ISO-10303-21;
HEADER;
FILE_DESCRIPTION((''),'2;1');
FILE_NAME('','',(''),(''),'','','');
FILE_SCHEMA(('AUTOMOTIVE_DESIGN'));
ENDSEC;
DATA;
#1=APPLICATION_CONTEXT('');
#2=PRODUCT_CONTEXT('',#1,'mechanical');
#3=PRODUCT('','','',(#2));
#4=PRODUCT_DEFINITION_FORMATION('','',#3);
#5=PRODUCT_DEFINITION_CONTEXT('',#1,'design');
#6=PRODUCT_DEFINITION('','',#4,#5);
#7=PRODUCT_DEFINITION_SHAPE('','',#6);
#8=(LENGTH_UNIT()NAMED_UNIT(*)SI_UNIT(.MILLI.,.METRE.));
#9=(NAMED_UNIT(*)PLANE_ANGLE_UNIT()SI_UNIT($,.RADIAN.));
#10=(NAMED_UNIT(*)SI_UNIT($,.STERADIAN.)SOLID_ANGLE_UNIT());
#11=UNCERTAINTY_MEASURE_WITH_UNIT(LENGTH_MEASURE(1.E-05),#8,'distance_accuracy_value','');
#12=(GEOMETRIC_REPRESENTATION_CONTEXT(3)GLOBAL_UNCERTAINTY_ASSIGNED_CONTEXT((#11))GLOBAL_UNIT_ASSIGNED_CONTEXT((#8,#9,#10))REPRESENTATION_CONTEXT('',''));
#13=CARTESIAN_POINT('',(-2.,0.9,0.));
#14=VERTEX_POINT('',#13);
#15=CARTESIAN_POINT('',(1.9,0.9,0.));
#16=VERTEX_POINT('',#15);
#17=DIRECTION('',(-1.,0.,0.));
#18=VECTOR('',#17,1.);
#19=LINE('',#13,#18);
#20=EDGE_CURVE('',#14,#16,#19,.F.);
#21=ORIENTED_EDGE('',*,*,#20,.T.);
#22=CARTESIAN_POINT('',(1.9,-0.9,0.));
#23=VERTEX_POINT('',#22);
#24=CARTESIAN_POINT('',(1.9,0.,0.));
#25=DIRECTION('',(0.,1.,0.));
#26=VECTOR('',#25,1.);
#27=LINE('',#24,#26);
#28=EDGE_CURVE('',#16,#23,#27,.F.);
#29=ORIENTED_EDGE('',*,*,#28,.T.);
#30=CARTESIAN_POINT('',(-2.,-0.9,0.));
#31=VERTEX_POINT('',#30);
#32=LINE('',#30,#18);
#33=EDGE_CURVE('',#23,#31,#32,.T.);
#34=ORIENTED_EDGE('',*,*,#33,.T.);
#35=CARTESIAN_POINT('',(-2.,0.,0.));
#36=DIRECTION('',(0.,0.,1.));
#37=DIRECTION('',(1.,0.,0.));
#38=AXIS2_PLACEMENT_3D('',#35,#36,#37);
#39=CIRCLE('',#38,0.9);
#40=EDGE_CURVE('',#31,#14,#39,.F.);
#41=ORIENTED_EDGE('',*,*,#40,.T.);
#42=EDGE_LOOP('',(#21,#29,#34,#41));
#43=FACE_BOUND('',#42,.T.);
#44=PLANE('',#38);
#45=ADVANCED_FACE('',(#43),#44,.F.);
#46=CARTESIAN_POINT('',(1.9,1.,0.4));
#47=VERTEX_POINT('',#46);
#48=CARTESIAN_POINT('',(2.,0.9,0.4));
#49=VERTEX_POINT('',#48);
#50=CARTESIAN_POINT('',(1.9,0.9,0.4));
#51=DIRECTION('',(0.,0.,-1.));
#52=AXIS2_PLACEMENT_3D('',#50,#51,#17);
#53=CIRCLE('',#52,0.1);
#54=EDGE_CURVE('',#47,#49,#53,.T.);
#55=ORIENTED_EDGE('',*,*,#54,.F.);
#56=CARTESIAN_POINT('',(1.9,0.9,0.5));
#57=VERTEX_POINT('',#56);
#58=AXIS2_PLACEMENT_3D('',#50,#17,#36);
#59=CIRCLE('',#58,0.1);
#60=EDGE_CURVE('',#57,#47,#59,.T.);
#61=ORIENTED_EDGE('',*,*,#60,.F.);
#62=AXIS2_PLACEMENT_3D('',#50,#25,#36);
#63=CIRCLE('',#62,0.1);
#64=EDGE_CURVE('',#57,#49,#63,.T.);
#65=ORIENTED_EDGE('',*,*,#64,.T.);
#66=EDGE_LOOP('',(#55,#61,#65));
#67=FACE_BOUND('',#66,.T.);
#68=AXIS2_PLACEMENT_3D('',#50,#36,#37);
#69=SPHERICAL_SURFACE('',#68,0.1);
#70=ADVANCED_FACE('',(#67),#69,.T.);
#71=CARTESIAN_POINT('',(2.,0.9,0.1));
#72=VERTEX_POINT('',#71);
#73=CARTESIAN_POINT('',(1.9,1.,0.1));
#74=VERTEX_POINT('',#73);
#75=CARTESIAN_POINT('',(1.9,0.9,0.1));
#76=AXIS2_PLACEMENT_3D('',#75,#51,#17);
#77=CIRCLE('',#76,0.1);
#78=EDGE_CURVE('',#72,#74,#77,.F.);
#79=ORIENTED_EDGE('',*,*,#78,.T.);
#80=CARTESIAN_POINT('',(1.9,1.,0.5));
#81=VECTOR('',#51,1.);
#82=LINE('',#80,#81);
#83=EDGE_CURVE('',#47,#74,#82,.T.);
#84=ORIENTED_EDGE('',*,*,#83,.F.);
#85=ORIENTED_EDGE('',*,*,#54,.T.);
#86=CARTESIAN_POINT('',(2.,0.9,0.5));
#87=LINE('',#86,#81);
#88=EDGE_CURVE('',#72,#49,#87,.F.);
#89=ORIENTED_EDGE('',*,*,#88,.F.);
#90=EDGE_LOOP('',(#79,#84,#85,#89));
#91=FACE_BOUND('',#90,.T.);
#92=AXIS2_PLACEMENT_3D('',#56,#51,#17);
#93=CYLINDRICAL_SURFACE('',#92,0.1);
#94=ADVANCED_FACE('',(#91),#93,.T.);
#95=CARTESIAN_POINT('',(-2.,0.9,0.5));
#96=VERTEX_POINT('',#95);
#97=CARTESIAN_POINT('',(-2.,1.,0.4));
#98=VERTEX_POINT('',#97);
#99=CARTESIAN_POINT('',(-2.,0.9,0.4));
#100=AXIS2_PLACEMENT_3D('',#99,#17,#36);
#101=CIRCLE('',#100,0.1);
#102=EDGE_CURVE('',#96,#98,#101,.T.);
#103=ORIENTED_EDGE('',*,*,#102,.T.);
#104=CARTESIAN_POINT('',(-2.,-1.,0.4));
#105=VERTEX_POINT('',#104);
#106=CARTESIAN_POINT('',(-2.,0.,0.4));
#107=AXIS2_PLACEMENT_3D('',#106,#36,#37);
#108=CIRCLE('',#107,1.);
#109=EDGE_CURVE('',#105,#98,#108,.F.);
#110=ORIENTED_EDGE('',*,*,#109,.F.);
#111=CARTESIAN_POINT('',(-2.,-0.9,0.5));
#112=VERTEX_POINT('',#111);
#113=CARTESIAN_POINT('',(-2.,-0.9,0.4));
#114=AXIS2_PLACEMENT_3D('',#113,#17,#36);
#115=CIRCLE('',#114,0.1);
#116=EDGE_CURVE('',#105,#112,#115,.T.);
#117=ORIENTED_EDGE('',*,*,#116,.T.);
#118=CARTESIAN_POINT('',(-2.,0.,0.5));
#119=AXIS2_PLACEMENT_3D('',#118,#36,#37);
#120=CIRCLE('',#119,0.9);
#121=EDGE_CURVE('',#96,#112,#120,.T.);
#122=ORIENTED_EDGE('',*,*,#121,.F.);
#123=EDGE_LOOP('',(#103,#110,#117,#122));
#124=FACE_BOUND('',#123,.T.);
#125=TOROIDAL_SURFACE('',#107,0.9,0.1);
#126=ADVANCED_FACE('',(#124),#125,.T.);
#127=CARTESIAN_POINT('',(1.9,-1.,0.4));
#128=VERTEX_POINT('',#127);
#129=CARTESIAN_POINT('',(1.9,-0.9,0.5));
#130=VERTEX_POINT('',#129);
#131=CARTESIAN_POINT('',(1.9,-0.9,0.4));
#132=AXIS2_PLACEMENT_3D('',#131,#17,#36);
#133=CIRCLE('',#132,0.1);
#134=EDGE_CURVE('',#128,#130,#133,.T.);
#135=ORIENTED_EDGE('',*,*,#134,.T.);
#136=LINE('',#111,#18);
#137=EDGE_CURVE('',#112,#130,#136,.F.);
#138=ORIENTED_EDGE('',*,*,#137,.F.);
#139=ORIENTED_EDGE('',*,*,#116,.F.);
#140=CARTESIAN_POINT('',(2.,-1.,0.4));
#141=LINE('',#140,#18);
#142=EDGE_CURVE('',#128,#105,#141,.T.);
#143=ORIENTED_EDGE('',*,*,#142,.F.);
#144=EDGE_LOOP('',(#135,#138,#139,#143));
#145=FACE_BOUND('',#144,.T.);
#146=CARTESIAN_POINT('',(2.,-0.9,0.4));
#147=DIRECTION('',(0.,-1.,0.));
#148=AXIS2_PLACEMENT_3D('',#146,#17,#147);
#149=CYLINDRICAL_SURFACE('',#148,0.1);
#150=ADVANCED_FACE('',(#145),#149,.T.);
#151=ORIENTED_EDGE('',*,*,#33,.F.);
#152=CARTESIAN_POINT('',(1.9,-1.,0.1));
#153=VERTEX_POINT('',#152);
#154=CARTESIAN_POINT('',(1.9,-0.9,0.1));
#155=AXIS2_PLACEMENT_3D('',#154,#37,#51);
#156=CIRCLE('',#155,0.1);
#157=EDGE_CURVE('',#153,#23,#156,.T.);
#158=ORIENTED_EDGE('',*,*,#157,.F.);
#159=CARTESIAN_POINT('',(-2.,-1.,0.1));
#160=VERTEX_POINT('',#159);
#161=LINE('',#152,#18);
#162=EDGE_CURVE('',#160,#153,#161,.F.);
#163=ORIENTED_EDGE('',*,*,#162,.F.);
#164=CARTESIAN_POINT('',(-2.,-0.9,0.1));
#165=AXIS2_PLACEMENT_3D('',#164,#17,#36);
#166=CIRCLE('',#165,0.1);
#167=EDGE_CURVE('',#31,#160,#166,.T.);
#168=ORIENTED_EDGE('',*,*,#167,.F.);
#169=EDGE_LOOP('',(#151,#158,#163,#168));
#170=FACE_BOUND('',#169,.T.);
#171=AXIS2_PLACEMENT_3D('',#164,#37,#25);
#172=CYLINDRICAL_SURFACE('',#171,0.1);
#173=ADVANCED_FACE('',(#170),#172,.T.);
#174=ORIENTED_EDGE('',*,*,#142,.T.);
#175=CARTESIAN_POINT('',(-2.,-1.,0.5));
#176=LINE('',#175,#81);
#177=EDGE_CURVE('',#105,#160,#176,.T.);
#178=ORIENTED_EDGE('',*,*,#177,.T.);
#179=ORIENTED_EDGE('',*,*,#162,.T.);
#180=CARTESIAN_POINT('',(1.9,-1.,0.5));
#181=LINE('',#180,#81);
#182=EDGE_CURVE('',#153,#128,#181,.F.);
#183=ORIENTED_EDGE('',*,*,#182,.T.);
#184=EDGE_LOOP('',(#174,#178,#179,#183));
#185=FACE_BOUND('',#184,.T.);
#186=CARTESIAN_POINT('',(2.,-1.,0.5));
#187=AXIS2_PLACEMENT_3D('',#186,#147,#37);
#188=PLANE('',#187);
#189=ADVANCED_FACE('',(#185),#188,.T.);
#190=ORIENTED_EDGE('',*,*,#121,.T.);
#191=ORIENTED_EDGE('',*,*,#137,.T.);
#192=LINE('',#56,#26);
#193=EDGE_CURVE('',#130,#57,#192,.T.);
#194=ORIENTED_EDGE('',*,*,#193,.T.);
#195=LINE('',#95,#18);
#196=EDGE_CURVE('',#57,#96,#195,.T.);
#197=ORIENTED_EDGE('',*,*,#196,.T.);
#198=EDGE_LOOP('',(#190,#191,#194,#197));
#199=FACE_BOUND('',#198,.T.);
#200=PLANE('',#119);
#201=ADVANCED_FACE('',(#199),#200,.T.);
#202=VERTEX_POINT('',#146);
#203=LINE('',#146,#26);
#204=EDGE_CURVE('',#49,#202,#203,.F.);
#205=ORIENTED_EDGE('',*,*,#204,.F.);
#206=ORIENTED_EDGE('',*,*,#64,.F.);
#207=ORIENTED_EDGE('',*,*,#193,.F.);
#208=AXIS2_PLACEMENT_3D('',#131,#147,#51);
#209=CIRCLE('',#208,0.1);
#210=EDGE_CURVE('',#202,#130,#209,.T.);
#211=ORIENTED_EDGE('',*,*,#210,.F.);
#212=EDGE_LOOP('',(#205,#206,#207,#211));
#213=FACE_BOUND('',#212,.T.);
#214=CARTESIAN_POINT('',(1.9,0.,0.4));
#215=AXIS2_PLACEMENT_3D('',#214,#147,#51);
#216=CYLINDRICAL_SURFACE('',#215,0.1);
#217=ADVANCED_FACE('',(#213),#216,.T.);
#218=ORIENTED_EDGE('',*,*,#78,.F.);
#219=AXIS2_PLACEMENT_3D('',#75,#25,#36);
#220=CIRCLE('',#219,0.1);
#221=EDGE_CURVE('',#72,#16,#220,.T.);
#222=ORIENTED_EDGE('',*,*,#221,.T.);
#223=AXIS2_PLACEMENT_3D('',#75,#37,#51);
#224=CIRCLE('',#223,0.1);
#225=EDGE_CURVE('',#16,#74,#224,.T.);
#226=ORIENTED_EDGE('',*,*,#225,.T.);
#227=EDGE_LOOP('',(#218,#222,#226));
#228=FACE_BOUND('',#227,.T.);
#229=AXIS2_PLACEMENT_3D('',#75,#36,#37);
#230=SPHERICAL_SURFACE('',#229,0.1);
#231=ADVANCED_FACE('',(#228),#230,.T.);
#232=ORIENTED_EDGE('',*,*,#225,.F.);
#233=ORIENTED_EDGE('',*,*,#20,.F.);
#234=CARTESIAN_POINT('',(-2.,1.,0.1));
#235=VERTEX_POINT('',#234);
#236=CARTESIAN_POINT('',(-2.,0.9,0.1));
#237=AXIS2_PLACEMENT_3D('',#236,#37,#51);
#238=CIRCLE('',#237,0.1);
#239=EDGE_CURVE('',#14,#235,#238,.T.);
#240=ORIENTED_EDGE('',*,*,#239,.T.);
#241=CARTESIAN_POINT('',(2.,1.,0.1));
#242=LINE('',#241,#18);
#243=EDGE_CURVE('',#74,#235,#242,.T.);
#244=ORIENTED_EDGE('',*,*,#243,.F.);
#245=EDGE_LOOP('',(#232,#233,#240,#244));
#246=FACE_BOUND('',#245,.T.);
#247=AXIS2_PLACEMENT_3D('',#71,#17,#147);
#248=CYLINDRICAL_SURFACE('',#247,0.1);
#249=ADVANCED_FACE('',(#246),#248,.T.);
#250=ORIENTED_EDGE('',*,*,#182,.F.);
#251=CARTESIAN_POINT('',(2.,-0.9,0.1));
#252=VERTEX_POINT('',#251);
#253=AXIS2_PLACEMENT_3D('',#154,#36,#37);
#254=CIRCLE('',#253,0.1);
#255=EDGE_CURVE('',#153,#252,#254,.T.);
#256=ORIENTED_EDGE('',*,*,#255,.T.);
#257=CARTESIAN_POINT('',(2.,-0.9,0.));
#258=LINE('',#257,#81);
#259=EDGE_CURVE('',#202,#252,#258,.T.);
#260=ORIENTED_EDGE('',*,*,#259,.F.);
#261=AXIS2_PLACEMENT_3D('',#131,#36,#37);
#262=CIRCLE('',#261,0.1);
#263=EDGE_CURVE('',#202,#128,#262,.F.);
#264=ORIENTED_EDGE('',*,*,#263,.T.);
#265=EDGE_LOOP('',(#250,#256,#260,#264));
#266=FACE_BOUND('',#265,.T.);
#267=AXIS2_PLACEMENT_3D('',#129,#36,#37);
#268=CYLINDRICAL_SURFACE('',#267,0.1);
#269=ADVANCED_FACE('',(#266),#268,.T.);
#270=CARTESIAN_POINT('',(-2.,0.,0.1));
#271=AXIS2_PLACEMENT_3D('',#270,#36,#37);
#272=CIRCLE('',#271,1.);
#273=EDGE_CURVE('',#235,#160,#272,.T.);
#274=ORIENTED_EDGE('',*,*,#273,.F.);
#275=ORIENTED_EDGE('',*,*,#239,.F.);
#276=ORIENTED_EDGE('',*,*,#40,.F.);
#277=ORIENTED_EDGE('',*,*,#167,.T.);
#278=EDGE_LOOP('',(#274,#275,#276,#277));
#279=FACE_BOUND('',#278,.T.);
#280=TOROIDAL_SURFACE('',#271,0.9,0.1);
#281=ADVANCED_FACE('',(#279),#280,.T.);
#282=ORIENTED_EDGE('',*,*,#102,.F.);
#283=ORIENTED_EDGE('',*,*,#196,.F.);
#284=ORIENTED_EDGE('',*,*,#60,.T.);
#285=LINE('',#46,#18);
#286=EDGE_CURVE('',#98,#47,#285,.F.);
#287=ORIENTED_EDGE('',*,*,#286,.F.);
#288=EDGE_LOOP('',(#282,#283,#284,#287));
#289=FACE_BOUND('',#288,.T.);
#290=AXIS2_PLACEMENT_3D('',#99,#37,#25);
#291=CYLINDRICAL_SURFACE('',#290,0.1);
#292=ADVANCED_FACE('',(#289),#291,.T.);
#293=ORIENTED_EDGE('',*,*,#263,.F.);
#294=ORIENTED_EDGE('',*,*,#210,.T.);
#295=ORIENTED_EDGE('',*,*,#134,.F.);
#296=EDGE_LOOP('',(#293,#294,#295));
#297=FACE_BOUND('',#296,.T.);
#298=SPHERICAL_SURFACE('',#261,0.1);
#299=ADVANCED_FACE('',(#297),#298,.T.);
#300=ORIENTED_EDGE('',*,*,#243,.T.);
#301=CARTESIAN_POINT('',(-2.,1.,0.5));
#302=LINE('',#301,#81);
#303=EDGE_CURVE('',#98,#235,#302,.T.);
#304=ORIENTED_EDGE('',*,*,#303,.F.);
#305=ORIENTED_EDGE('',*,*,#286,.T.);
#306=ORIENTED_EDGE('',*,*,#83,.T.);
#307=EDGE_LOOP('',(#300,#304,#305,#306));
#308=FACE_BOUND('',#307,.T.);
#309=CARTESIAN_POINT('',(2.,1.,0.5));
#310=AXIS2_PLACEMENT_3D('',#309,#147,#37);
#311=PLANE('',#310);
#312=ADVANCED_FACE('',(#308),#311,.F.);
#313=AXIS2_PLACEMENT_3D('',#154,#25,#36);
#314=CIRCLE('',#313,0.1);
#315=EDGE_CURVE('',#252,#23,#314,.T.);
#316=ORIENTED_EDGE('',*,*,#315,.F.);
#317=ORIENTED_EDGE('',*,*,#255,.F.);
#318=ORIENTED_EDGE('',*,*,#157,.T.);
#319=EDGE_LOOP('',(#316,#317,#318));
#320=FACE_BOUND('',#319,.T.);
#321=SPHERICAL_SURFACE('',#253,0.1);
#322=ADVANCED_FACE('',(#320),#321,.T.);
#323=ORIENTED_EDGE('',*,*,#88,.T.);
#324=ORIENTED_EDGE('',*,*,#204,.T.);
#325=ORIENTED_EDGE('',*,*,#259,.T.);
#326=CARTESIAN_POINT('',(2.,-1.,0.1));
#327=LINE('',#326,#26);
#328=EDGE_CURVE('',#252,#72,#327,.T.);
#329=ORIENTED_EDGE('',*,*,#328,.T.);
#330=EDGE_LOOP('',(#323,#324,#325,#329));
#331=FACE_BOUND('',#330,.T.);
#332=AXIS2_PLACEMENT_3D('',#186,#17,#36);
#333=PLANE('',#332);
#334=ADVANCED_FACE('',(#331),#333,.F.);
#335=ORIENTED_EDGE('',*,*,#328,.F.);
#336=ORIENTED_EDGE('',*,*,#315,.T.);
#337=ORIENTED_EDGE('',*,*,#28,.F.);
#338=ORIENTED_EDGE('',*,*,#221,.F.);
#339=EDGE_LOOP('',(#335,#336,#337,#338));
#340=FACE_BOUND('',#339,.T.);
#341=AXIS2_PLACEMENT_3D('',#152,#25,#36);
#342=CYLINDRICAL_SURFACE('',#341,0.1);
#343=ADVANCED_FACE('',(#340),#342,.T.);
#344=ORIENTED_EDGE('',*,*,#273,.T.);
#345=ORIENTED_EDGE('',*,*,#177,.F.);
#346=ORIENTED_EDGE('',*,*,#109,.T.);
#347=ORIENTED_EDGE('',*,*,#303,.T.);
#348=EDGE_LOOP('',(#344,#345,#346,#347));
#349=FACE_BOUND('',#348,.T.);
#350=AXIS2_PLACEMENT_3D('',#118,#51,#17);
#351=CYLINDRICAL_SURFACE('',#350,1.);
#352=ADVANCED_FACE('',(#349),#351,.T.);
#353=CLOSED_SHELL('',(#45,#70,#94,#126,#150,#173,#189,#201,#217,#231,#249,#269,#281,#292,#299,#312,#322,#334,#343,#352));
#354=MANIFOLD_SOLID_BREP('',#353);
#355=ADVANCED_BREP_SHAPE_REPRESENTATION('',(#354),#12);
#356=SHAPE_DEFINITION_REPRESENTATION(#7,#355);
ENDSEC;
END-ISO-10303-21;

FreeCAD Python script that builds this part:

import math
import FreeCAD as App
import Part
import Sketcher


def edges_at(feature, points):
    """Names of the edges that pass closest to the given points."""
    edges = feature.Shape.Edges
    near = lambda p: min(range(len(edges)), key=lambda i: edges[i].distToShape(Part.Vertex(*p))[0])
    return sorted({f"Edge{near(p) + 1}" for p in points})

doc = App.newDocument("Part")
params = doc.addObject("Spreadsheet::Sheet", "Params")
for row, (alias, value) in enumerate([
    ("sketch1_radius", "1 mm"),
    ("sketch1_width", "4 mm"),
    ("pad1_length", "0.5 mm"),
    ("fillet_radius", "0.1 mm"),
    ("fillet2_radius", "0.1 mm"),
], start=1):
    params.set(f"A{row}", alias)
    params.set(f"B{row}", "=" + value)
    params.setAlias(f"B{row}", alias)

body = doc.addObject("PartDesign::Body", "Body")

# Sketch on XY plane
sketch1 = body.newObject("Sketcher::SketchObject", "Sketch")
sketch1.AttachmentSupport = (doc.getObject("XY_Plane"), [""])
sketch1.MapMode = "FlatFace"
sketch1.addGeometry([
    Part.LineSegment(App.Vector(-2, -1, 0), App.Vector(2, -1, 0)),
    Part.LineSegment(App.Vector(2, -1, 0), App.Vector(2, 1, 0)),
    Part.LineSegment(App.Vector(2, 1, 0), App.Vector(-2, 1, 0)),
    Part.ArcOfCircle(Part.Circle(App.Vector(-2, 0, 0), App.Vector(0, 0, 1), 1), math.radians(90), math.radians(270)),
], False)
sketch1.addConstraint([
    Sketcher.Constraint("Coincident", 0, 2, 1, 1),
    Sketcher.Constraint("Coincident", 1, 2, 2, 1),
    Sketcher.Constraint("Tangent", 2, 2, 3, 1),
    Sketcher.Constraint("Tangent", 3, 2, 0, 1),
    Sketcher.Constraint("Horizontal", 0),
    Sketcher.Constraint("Vertical", 1),
    Sketcher.Constraint("Horizontal", 2),
    Sketcher.Constraint("Symmetric", 0, 2, 2, 2, -1, 1),
    Sketcher.Constraint("Radius", 3, 1.0),
    Sketcher.Constraint("DistanceX", 0, 1, 0, 2, 4.0),
])
sketch1.setExpression("Constraints[8]", "Params.sketch1_radius")
sketch1.setExpression("Constraints[9]", "Params.sketch1_width")
pad1 = body.newObject("PartDesign::Pad", "Pad")
pad1.Profile = sketch1
pad1.setExpression("Length", "Params.pad1_length")
doc.recompute()

fillet = body.newObject("PartDesign::Fillet", "Fillet")
fillet.Base = (pad1, edges_at(pad1, [(2, -1, 0.25), (2, 1, 0.25)]))
fillet.setExpression("Radius", "Params.fillet_radius")
doc.recompute()

fillet2 = body.newObject("PartDesign::Fillet", "Fillet001")
fillet2.Base = (fillet, edges_at(fillet, [
    (-3, 0, 0.5),
    (2, 0, 0),
    (2, 0, 0.5),
    (-0.05, -1, 0),
    (-0.05, 1, 0),
    (1.971, 0.971, 0),
    (1.971, -0.971, 0),
    (-0.05, -1, 0.5),
    (-0.05, 1, 0.5),
    (1.971, 0.971, 0.5),
    (1.971, -0.971, 0.5),
    (-3, 0, 0),
]))
fillet2.setExpression("Radius", "Params.fillet2_radius")

doc.recompute()
